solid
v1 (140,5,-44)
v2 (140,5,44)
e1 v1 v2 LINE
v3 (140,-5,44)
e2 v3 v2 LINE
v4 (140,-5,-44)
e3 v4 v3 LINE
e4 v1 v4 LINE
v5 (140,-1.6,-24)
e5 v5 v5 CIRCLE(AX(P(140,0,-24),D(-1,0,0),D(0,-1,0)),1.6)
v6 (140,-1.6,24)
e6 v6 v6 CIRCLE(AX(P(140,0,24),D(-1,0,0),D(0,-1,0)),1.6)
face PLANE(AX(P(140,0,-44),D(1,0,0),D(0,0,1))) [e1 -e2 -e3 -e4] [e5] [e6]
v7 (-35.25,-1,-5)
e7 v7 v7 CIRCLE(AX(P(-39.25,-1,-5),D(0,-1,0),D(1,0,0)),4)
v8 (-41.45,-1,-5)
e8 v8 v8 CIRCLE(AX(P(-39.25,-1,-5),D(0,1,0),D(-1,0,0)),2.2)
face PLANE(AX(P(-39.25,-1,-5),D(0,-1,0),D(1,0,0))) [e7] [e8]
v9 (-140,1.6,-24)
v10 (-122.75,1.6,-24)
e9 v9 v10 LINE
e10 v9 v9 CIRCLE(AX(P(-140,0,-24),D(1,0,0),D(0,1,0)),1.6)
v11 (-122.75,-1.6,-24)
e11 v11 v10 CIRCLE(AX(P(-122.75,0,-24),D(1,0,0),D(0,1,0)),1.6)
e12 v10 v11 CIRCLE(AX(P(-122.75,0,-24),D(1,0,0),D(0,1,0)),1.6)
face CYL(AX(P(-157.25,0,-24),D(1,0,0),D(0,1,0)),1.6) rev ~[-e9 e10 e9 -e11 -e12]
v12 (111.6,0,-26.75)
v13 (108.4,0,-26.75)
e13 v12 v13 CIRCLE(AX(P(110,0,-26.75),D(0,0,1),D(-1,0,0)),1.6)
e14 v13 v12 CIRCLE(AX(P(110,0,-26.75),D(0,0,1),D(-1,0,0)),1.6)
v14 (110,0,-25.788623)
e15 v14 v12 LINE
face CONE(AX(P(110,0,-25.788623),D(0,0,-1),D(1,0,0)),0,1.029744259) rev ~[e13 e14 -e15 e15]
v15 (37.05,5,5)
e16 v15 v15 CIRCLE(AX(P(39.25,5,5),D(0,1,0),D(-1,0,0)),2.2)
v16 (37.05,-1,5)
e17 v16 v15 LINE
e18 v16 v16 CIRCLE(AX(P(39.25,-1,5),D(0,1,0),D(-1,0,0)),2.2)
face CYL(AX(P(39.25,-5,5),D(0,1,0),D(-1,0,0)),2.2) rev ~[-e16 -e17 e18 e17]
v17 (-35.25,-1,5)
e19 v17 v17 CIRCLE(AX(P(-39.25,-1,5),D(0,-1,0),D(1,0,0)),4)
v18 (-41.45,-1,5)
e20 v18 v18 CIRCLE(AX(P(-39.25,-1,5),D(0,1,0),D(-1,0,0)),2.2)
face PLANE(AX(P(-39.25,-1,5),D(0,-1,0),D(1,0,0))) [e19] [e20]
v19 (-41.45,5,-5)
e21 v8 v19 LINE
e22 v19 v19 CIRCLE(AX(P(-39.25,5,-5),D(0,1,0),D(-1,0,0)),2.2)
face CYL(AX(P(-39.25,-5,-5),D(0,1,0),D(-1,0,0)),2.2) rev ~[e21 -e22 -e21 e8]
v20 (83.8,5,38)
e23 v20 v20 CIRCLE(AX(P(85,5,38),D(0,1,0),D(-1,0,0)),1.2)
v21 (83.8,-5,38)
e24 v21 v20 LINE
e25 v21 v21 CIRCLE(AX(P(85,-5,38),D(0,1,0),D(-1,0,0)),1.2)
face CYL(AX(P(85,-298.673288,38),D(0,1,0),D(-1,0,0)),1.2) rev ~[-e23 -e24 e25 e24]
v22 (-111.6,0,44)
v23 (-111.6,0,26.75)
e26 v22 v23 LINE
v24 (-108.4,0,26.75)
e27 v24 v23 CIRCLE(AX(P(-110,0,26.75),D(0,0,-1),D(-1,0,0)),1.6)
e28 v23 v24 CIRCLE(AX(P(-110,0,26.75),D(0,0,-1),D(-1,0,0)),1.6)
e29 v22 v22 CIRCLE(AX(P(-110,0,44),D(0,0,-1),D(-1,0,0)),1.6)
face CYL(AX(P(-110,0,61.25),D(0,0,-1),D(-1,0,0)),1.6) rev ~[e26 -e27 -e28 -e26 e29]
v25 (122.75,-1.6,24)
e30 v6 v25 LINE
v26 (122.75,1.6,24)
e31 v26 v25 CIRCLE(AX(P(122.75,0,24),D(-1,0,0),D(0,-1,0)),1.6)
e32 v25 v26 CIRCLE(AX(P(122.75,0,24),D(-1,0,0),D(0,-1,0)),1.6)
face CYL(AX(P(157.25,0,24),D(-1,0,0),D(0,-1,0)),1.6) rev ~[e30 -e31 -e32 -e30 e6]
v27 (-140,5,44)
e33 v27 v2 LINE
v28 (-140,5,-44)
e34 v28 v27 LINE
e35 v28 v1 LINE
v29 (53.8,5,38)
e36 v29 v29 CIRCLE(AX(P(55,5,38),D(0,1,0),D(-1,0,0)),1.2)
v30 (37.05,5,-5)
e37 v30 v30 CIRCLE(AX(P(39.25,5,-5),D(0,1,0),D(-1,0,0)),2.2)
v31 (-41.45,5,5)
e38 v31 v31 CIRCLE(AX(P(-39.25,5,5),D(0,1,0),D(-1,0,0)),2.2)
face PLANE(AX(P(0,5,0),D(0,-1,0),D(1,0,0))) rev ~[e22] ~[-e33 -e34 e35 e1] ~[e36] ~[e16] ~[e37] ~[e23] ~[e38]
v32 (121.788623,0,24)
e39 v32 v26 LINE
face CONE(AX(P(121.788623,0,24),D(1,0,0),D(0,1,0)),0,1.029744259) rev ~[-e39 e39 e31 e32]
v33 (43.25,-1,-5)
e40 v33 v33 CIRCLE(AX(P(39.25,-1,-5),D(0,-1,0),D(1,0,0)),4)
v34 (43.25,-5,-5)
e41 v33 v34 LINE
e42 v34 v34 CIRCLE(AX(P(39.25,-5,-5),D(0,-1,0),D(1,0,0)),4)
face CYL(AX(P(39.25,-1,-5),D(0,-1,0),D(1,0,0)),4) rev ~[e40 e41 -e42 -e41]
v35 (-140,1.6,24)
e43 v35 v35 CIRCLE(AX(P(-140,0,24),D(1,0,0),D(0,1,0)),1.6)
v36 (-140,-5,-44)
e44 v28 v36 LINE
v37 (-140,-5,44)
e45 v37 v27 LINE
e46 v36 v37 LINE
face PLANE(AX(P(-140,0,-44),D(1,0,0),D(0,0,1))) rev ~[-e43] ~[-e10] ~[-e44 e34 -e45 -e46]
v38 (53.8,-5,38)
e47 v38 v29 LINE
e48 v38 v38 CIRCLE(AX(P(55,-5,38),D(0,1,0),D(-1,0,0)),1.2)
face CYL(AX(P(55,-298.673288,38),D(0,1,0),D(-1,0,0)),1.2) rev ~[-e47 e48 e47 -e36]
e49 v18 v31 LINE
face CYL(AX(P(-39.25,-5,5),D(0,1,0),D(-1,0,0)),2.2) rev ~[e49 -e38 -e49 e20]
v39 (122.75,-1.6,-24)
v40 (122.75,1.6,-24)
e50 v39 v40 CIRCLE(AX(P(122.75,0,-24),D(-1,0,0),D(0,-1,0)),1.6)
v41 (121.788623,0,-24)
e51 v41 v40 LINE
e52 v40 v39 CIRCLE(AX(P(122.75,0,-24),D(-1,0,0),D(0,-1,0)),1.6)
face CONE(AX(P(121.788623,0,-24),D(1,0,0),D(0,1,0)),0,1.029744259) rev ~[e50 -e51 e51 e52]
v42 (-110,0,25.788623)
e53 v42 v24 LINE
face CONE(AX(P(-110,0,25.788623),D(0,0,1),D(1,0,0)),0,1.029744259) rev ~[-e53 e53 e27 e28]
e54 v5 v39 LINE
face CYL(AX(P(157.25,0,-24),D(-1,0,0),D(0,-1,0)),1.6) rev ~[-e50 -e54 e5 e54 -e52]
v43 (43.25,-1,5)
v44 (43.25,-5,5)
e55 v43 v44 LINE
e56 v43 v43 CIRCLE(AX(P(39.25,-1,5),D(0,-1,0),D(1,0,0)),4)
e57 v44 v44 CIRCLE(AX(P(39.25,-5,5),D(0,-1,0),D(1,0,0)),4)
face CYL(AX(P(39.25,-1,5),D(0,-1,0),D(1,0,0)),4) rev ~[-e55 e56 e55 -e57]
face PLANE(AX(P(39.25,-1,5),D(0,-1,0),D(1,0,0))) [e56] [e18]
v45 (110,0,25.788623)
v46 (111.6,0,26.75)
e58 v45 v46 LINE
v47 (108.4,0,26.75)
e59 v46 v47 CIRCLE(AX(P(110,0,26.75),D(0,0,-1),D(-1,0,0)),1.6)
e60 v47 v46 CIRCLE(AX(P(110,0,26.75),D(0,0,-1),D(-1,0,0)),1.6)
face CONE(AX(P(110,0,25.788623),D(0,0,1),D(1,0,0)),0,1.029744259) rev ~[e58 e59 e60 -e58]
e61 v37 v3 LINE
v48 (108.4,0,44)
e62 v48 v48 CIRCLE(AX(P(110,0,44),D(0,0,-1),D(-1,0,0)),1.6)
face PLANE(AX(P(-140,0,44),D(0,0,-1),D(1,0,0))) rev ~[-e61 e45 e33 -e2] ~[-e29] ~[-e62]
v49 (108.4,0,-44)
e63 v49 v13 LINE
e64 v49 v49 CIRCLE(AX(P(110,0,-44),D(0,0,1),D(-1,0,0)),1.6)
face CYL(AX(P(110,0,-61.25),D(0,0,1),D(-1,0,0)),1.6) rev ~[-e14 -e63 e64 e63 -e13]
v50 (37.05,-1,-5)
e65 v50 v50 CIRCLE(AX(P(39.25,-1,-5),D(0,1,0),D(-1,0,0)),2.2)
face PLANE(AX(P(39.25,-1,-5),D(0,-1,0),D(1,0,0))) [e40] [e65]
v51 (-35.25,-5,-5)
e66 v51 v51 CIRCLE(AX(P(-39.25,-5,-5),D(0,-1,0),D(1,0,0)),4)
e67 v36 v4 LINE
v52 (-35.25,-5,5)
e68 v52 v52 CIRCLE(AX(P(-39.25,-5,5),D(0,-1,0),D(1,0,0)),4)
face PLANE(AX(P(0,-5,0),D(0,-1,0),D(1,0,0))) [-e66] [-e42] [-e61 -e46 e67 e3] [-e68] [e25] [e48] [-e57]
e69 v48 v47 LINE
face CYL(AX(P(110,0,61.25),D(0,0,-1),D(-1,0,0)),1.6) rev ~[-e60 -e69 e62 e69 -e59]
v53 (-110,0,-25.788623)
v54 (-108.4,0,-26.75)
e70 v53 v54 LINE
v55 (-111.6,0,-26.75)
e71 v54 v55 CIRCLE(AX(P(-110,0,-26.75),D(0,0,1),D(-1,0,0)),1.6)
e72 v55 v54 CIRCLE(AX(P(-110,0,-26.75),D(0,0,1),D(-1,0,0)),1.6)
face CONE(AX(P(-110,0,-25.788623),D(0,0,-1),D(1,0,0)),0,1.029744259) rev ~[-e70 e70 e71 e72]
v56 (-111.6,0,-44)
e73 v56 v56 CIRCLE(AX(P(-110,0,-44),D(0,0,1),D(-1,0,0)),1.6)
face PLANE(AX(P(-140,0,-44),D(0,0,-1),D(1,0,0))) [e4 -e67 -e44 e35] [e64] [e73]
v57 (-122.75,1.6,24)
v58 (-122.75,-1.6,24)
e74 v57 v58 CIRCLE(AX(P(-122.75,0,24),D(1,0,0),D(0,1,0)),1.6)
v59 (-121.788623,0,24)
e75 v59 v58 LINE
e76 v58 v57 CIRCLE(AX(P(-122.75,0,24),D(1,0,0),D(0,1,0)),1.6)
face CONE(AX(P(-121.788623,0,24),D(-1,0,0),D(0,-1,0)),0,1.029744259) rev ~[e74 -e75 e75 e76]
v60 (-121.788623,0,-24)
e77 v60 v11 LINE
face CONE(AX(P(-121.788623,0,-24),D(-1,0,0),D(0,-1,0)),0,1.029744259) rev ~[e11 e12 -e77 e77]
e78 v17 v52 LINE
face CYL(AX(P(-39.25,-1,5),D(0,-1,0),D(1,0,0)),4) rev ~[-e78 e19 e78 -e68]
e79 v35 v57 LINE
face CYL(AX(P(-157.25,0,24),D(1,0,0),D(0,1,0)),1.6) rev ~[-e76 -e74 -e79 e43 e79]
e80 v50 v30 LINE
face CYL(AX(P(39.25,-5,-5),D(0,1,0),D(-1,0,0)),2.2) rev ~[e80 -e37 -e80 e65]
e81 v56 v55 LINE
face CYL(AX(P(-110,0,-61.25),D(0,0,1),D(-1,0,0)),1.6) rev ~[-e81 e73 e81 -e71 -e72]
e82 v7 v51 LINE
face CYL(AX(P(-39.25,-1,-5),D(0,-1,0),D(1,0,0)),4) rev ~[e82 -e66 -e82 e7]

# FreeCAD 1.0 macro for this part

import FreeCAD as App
import Part
import Sketcher

V = App.Vector
Q = App.Units.Quantity

doc = App.newDocument("Part")
params = doc.addObject("Spreadsheet::Sheet", "Params")
for row, (alias, value) in enumerate([
    ("sketch1_width", "280 mm"),
    ("sketch1_height", "88 mm"),
    ("pad1_length", "10 mm"),
    ("sketch2_diameter", "3.2 mm"),
    ("hole_diameter", "3.2 mm"),
    ("hole_depth", "17.25 mm"),
    ("sketch3_diameter", "3.2 mm"),
    ("hole2_diameter", "3.2 mm"),
    ("hole2_depth", "17.25 mm"),
    ("sketch4_diameter", "3.2 mm"),
    ("hole3_diameter", "3.2 mm"),
    ("hole3_depth", "17.25 mm"),
    ("sketch5_diameter", "3.2 mm"),
    ("hole4_diameter", "3.2 mm"),
    ("hole4_depth", "17.25 mm"),
    ("sketch6_diameter", "4.4 mm"),
    ("hole5_diameter", "4.4 mm"),
    ("hole5_cbore_diameter", "8 mm"),
    ("hole5_cbore_depth", "4 mm"),
    ("sketch7_diameter", "2.4 mm"),
    ("hole6_diameter", "2.4 mm"),
], start=1):
    params.set(f"A{row}", alias)
    params.set(f"B{row}", "=" + value)
    params.setAlias(f"B{row}", alias)

body = doc.addObject("PartDesign::Body", "Body")

sketch1 = body.newObject("Sketcher::SketchObject", "Sketch")
sketch1.AttachmentSupport = (doc.getObject("XZ_Plane"), [""])
sketch1.MapMode = "FlatFace"
sketch1.addGeometry(Part.LineSegment(V(-140, 44, 0), V(-140, -44, 0)), False)
sketch1.addGeometry(Part.LineSegment(V(-140, -44, 0), V(140, -44, 0)), False)
sketch1.addGeometry(Part.LineSegment(V(140, -44, 0), V(140, 44, 0)), False)
sketch1.addGeometry(Part.LineSegment(V(140, 44, 0), V(-140, 44, 0)), False)
sketch1.addConstraint(Sketcher.Constraint("Coincident", 0, 2, 1, 1))
sketch1.addConstraint(Sketcher.Constraint("Coincident", 1, 2, 2, 1))
sketch1.addConstraint(Sketcher.Constraint("Coincident", 2, 2, 3, 1))
sketch1.addConstraint(Sketcher.Constraint("Coincident", 3, 2, 0, 1))
sketch1.addConstraint(Sketcher.Constraint("Vertical", 0))
sketch1.addConstraint(Sketcher.Constraint("Horizontal", 1))
sketch1.addConstraint(Sketcher.Constraint("Vertical", 2))
sketch1.addConstraint(Sketcher.Constraint("Horizontal", 3))
sketch1.addConstraint(Sketcher.Constraint("Symmetric", 0, 2, 2, 2, -1, 1))
sketch1.addConstraint(Sketcher.Constraint("DistanceX", 1, 1, 1, 2, Q("280 mm")))
sketch1.addConstraint(Sketcher.Constraint("DistanceY", 0, 2, 0, 1, Q("88 mm")))
sketch1.setExpression("Constraints[9]", "Params.sketch1_width")
sketch1.setExpression("Constraints[10]", "Params.sketch1_height")
pad1 = body.newObject("PartDesign::Pad", "Pad")
pad1.Profile = sketch1
pad1.setExpression("Length", "Params.pad1_length")
pad1.Midplane = True

sketch2 = body.newObject("Sketcher::SketchObject", "Sketch001")
sketch2.AttachmentSupport = (doc.getObject("XY_Plane"), [""])
sketch2.MapMode = "FlatFace"
sketch2.AttachmentOffset = App.Placement(V(0, 0, 44), App.Rotation())
sketch2.addGeometry(Part.Circle(V(110, 0, 0), V(0, 0, 1), 1.6), False)
sketch2.addGeometry(Part.Circle(V(-110, 0, 0), V(0, 0, 1), 1.6), False)
sketch2.addConstraint(Sketcher.Constraint("Equal", 0, 1))
sketch2.addConstraint(Sketcher.Constraint("Symmetric", 0, 3, 1, 3, -1, 1))
sketch2.addConstraint(Sketcher.Constraint("PointOnObject", 0, 3, -1))
sketch2.addConstraint(Sketcher.Constraint("Diameter", 0, Q("3.2 mm")))
sketch2.addConstraint(Sketcher.Constraint("DistanceX", -1, 1, 0, 3, Q("110 mm")))
sketch2.setExpression("Constraints[3]", "Params.sketch2_diameter")
doc.recompute()
hole = body.newObject("PartDesign::Hole", "Hole")
hole.Profile = sketch2
hole.ThreadType = "None"
hole.setExpression("Diameter", "Params.hole_diameter")
hole.DepthType = "Dimension"
hole.setExpression("Depth", "Params.hole_depth")
hole.DrillPoint = "Angled"
hole.DrillPointAngle = 118

sketch3 = body.newObject("Sketcher::SketchObject", "Sketch002")
sketch3.AttachmentSupport = (doc.getObject("XY_Plane"), [""])
sketch3.MapMode = "FlatFace"
sketch3.AttachmentOffset = App.Placement(V(0, 0, -44), App.Rotation())
sketch3.addGeometry(Part.Circle(V(-110, 0, 0), V(0, 0, 1), 1.6), False)
sketch3.addGeometry(Part.Circle(V(110, 0, 0), V(0, 0, 1), 1.6), False)
sketch3.addConstraint(Sketcher.Constraint("Equal", 0, 1))
sketch3.addConstraint(Sketcher.Constraint("Symmetric", 0, 3, 1, 3, -1, 1))
sketch3.addConstraint(Sketcher.Constraint("PointOnObject", 0, 3, -1))
sketch3.addConstraint(Sketcher.Constraint("Diameter", 0, Q("3.2 mm")))
sketch3.addConstraint(Sketcher.Constraint("DistanceX", 0, 3, -1, 1, Q("110 mm")))
sketch3.setExpression("Constraints[3]", "Params.sketch3_diameter")
doc.recompute()
hole2 = body.newObject("PartDesign::Hole", "Hole001")
hole2.Profile = sketch3
hole2.ThreadType = "None"
hole2.setExpression("Diameter", "Params.hole2_diameter")
hole2.DepthType = "Dimension"
hole2.setExpression("Depth", "Params.hole2_depth")
hole2.DrillPoint = "Angled"
hole2.DrillPointAngle = 118
hole2.Reversed = True

sketch4 = body.newObject("Sketcher::SketchObject", "Sketch003")
sketch4.AttachmentSupport = (doc.getObject("YZ_Plane"), [""])
sketch4.MapMode = "FlatFace"
sketch4.AttachmentOffset = App.Placement(V(0, 0, 140), App.Rotation())
sketch4.addGeometry(Part.Circle(V(0, -24, 0), V(0, 0, 1), 1.6), False)
sketch4.addGeometry(Part.Circle(V(0, 24, 0), V(0, 0, 1), 1.6), False)
sketch4.addConstraint(Sketcher.Constraint("Equal", 0, 1))
sketch4.addConstraint(Sketcher.Constraint("Symmetric", 0, 3, 1, 3, -1, 1))
sketch4.addConstraint(Sketcher.Constraint("PointOnObject", 0, 3, -2))
sketch4.addConstraint(Sketcher.Constraint("Diameter", 0, Q("3.2 mm")))
sketch4.addConstraint(Sketcher.Constraint("DistanceY", 0, 3, -1, 1, Q("24 mm")))
sketch4.setExpression("Constraints[3]", "Params.sketch4_diameter")
doc.recompute()
hole3 = body.newObject("PartDesign::Hole", "Hole002")
hole3.Profile = sketch4
hole3.ThreadType = "None"
hole3.setExpression("Diameter", "Params.hole3_diameter")
hole3.DepthType = "Dimension"
hole3.setExpression("Depth", "Params.hole3_depth")
hole3.DrillPoint = "Angled"
hole3.DrillPointAngle = 118

sketch5 = body.newObject("Sketcher::SketchObject", "Sketch004")
sketch5.AttachmentSupport = (doc.getObject("YZ_Plane"), [""])
sketch5.MapMode = "FlatFace"
sketch5.AttachmentOffset = App.Placement(V(0, 0, -140), App.Rotation())
sketch5.addGeometry(Part.Circle(V(0, -24, 0), V(0, 0, 1), 1.6), False)
sketch5.addGeometry(Part.Circle(V(0, 24, 0), V(0, 0, 1), 1.6), False)
sketch5.addConstraint(Sketcher.Constraint("Equal", 0, 1))
sketch5.addConstraint(Sketcher.Constraint("Symmetric", 0, 3, 1, 3, -1, 1))
sketch5.addConstraint(Sketcher.Constraint("PointOnObject", 0, 3, -2))
sketch5.addConstraint(Sketcher.Constraint("Diameter", 0, Q("3.2 mm")))
sketch5.addConstraint(Sketcher.Constraint("DistanceY", 0, 3, -1, 1, Q("24 mm")))
sketch5.setExpression("Constraints[3]", "Params.sketch5_diameter")
doc.recompute()
hole4 = body.newObject("PartDesign::Hole", "Hole003")
hole4.Profile = sketch5
hole4.ThreadType = "None"
hole4.setExpression("Diameter", "Params.hole4_diameter")
hole4.DepthType = "Dimension"
hole4.setExpression("Depth", "Params.hole4_depth")
hole4.DrillPoint = "Angled"
hole4.DrillPointAngle = 118
hole4.Reversed = True

sketch6 = body.newObject("Sketcher::SketchObject", "Sketch005")
sketch6.AttachmentSupport = (doc.getObject("XZ_Plane"), [""])
sketch6.MapMode = "FlatFace"
sketch6.AttachmentOffset = App.Placement(V(0, 0, 5), App.Rotation())
sketch6.addGeometry(Part.Circle(V(-39.25, 5, 0), V(0, 0, 1), 2.2), False)
sketch6.addGeometry(Part.Circle(V(39.25, 5, 0), V(0, 0, 1), 2.2), False)
sketch6.addGeometry(Part.Circle(V(-39.25, -5, 0), V(0, 0, 1), 2.2), False)
sketch6.addGeometry(Part.Circle(V(39.25, -5, 0), V(0, 0, 1), 2.2), False)
sketch6.addConstraint(Sketcher.Constraint("Equal", 0, 1))
sketch6.addConstraint(Sketcher.Constraint("Equal", 1, 2))
sketch6.addConstraint(Sketcher.Constraint("Equal", 2, 3))
sketch6.addConstraint(Sketcher.Constraint("Symmetric", 1, 3, 2, 3, -1, 1))
sketch6.addConstraint(Sketcher.Constraint("Symmetric", 0, 3, 3, 3, -1, 1))
sketch6.addConstraint(Sketcher.Constraint("Symmetric", 0, 3, 1, 3, -2))
sketch6.addConstraint(Sketcher.Constraint("Diameter", 0, Q("4.4 mm")))
sketch6.addConstraint(Sketcher.Constraint("DistanceY", -1, 1, 0, 3, Q("5 mm")))
sketch6.addConstraint(Sketcher.Constraint("DistanceX", 0, 3, 1, 3, Q("78.5 mm")))
sketch6.setExpression("Constraints[6]", "Params.sketch6_diameter")
doc.recompute()
hole5 = body.newObject("PartDesign::Hole", "Hole004")
hole5.Profile = sketch6
hole5.ThreadType = "None"
hole5.setExpression("Diameter", "Params.hole5_diameter")
hole5.DepthType = "ThroughAll"
hole5.HoleCutType = "Counterbore"
hole5.setExpression("HoleCutDiameter", "Params.hole5_cbore_diameter")
hole5.setExpression("HoleCutDepth", "Params.hole5_cbore_depth")

sketch7 = body.newObject("Sketcher::SketchObject", "Sketch006")
sketch7.AttachmentSupport = (doc.getObject("XZ_Plane"), [""])
sketch7.MapMode = "FlatFace"
sketch7.AttachmentOffset = App.Placement(V(0, 0, 5), App.Rotation())
sketch7.addGeometry(Part.Circle(V(85, 38, 0), V(0, 0, 1), 1.2), False)
sketch7.addGeometry(Part.Circle(V(55, 38, 0), V(0, 0, 1), 1.2), False)
sketch7.addConstraint(Sketcher.Constraint("Equal", 0, 1))
sketch7.addConstraint(Sketcher.Constraint("Horizontal", 0, 3, 1, 3))
sketch7.addConstraint(Sketcher.Constraint("Diameter", 0, Q("2.4 mm")))
sketch7.addConstraint(Sketcher.Constraint("DistanceX", -1, 1, 0, 3, Q("85 mm")))
sketch7.addConstraint(Sketcher.Constraint("DistanceY", -1, 1, 0, 3, Q("38 mm")))
sketch7.addConstraint(Sketcher.Constraint("DistanceX", -1, 1, 1, 3, Q("55 mm")))
sketch7.setExpression("Constraints[2]", "Params.sketch7_diameter")
doc.recompute()
hole6 = body.newObject("PartDesign::Hole", "Hole005")
hole6.Profile = sketch7
hole6.ThreadType = "None"
hole6.setExpression("Diameter", "Params.hole6_diameter")
hole6.DepthType = "ThroughAll"

doc.recompute()
